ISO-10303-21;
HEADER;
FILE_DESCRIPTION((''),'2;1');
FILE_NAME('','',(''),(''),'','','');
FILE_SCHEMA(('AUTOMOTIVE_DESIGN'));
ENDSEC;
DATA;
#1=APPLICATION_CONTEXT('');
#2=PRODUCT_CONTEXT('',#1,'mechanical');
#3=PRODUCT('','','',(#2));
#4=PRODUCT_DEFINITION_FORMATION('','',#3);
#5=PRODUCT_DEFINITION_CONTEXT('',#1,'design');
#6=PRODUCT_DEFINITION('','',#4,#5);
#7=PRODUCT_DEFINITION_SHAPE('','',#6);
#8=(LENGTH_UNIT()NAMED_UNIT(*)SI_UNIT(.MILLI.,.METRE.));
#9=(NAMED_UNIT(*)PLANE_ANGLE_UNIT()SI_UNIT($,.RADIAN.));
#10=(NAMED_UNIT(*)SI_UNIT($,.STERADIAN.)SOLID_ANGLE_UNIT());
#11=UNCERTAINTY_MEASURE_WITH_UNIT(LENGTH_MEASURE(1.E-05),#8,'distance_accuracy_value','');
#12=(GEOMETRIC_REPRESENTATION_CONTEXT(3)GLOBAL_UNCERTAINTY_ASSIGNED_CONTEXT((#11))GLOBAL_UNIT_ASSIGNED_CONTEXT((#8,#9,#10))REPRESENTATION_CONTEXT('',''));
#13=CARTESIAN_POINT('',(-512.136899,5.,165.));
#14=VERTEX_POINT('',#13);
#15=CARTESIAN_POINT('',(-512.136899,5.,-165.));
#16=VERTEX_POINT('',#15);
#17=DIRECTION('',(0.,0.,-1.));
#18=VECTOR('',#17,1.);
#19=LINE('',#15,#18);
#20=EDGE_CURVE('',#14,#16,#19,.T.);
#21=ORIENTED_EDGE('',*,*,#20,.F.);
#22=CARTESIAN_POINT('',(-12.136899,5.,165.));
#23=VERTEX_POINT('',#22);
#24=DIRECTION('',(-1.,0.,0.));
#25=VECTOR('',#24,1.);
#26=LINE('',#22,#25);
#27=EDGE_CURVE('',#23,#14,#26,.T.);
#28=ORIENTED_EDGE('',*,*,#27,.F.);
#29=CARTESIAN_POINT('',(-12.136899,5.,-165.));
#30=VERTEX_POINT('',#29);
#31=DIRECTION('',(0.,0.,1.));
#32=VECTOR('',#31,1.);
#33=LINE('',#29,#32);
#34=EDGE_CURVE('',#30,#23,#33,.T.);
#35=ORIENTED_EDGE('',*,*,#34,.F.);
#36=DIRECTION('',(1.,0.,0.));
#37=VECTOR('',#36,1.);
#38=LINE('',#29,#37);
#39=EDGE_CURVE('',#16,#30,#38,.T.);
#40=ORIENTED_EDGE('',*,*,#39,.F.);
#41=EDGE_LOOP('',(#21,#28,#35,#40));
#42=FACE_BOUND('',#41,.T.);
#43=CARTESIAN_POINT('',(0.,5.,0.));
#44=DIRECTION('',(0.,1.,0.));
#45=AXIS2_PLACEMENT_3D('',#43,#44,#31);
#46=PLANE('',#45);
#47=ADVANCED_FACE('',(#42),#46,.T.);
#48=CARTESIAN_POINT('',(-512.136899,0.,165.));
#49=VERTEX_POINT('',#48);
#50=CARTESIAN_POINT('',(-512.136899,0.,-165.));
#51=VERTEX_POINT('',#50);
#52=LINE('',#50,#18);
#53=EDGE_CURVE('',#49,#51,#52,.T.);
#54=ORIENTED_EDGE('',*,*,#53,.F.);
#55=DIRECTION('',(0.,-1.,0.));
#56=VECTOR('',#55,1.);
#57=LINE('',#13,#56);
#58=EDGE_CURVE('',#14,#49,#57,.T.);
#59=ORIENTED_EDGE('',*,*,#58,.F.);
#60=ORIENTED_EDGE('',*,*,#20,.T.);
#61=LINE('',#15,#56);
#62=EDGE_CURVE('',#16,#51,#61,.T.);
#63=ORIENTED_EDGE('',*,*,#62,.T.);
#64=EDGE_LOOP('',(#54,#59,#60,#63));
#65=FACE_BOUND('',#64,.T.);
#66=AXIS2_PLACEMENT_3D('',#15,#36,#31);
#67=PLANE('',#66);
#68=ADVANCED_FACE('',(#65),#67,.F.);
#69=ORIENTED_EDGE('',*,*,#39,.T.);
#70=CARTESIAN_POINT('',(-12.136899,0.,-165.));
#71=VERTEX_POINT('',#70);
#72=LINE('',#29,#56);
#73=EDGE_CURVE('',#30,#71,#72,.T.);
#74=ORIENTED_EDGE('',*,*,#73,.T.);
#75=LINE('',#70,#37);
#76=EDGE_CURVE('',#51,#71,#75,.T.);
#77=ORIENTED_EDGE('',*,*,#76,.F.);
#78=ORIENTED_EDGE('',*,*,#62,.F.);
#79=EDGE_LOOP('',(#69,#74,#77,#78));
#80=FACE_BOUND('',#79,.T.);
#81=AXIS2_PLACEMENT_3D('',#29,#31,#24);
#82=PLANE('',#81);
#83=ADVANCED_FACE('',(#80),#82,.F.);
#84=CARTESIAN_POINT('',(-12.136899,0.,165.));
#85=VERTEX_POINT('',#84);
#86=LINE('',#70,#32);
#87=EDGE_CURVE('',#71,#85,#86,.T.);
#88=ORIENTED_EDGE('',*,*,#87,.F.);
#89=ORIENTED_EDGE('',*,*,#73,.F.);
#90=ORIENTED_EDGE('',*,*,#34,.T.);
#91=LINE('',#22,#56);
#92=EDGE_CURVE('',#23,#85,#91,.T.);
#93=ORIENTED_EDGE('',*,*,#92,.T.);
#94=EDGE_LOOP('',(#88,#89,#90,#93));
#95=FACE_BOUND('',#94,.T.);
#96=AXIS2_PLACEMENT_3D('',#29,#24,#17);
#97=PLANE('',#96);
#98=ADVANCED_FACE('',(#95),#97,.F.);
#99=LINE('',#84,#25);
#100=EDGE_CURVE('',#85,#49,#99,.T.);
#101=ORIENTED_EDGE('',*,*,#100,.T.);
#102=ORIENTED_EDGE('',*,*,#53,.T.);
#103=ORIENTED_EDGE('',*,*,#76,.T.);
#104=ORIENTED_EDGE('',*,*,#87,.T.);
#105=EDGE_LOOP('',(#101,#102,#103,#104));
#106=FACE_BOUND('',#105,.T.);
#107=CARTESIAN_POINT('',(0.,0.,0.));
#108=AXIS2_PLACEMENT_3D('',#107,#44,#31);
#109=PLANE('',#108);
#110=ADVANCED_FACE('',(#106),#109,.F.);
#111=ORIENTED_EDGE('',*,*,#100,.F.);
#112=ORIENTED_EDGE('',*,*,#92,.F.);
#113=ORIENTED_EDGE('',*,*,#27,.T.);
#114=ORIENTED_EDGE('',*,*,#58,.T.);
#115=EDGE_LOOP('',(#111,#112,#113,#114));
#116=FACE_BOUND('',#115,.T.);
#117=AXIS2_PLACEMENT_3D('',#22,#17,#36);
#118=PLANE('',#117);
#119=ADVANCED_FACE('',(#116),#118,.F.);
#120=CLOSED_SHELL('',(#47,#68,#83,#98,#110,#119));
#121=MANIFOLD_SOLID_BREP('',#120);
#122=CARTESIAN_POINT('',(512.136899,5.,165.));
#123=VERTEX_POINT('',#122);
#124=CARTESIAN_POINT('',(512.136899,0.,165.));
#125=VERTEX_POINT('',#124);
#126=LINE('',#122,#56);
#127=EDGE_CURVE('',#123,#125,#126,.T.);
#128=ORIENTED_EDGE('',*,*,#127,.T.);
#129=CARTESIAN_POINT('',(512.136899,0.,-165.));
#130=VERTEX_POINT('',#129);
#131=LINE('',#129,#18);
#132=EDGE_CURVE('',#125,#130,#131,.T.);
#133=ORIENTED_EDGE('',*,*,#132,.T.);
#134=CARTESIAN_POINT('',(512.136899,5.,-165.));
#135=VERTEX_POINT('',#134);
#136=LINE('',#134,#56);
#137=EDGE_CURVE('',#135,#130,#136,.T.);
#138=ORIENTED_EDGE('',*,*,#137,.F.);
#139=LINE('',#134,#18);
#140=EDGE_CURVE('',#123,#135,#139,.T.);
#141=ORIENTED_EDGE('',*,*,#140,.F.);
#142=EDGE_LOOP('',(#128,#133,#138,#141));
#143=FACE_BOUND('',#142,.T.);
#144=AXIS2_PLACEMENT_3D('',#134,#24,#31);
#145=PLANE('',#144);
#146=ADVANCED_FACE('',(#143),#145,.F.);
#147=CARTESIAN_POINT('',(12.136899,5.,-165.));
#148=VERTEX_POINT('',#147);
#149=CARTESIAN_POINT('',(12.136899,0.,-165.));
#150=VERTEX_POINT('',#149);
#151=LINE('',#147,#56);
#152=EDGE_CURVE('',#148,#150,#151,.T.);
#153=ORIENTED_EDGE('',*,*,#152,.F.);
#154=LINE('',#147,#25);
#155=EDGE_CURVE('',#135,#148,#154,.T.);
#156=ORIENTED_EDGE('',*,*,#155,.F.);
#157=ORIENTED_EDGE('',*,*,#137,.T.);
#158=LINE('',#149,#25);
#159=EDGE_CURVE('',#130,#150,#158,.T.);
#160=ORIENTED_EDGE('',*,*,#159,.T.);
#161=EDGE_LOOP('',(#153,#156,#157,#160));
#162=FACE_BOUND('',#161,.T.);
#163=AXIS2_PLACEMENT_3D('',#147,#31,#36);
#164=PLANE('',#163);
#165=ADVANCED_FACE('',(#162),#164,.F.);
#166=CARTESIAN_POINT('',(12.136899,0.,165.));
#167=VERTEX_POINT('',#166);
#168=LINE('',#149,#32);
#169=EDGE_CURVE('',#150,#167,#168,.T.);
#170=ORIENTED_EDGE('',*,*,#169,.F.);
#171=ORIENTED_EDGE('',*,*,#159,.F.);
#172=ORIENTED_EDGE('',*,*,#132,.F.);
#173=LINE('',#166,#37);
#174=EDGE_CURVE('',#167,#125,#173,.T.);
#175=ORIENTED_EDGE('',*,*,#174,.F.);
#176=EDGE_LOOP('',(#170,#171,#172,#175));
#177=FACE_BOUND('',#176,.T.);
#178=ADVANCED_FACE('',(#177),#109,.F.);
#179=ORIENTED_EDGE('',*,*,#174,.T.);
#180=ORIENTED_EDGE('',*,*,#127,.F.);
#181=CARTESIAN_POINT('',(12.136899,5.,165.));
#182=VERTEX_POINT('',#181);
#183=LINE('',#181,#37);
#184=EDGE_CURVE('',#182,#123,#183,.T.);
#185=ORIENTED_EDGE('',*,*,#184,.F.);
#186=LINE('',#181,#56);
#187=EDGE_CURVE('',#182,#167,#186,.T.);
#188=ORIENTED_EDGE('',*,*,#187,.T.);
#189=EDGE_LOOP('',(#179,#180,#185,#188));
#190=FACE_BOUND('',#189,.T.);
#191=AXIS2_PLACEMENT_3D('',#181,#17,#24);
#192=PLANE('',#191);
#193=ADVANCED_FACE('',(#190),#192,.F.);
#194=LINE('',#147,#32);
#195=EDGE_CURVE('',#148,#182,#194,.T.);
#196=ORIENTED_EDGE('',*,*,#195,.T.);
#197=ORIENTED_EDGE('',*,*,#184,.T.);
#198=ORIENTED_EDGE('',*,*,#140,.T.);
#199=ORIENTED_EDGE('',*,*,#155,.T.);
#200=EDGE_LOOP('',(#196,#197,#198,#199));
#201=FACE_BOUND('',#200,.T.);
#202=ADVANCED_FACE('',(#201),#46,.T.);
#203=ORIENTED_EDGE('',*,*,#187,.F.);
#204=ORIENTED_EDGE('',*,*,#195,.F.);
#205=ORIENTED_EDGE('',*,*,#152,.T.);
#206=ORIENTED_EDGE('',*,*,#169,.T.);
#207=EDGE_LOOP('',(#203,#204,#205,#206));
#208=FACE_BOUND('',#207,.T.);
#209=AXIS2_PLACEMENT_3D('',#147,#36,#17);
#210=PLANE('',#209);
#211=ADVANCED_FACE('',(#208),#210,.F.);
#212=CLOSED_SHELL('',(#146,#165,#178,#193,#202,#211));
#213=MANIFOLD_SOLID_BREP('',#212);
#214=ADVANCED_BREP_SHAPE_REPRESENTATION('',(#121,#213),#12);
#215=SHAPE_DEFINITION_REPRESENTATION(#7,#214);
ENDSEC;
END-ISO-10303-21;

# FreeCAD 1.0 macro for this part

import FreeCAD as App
import Part
import Sketcher

doc = App.newDocument("Part")
body = doc.addObject("PartDesign::Body", "Body")

# Sketch on XZ plane
sketch1 = body.newObject("Sketcher::SketchObject", "Sketch")
sketch1.AttachmentSupport = (doc.getObject("XZ_Plane"), [""])
sketch1.MapMode = "FlatFace"
sketch1.addGeometry([
    Part.LineSegment(App.Vector(12, -165, 0), App.Vector(12, 165, 0)),
    Part.LineSegment(App.Vector(12, 165, 0), App.Vector(512, 165, 0)),
    Part.LineSegment(App.Vector(512, 165, 0), App.Vector(512, -165, 0)),
    Part.LineSegment(App.Vector(512, -165, 0), App.Vector(12, -165, 0)),
], False)
sketch1.addConstraint([
    Sketcher.Constraint("Coincident", 0, 2, 1, 1),
    Sketcher.Constraint("Coincident", 1, 2, 2, 1),
    Sketcher.Constraint("Coincident", 2, 2, 3, 1),
    Sketcher.Constraint("Coincident", 3, 2, 0, 1),
    Sketcher.Constraint("Vertical", 0),
    Sketcher.Constraint("Horizontal", 1),
    Sketcher.Constraint("Vertical", 2),
    Sketcher.Constraint("Horizontal", 3),
    Sketcher.Constraint("DistanceX", 1, 1, 1, 2, 500.0),
    Sketcher.Constraint("DistanceY", 0, 1, 0, 2, 330.0),
    Sketcher.Constraint("DistanceY", -1, 1, 0, 2, 165.0),
    Sketcher.Constraint("DistanceX", -1, 1, 0, 2, 12.136899),
])
pad1 = body.newObject("PartDesign::Pad", "Pad")
pad1.Profile = sketch1
pad1.Length = 5
pad1.Reversed = True
body2 = doc.addObject("PartDesign::Body", "Body001")
doc.recompute()

mirroring = doc.addObject("Part::Mirroring", "Mirroring")
mirroring.Source = body
mirroring.Base = App.Vector(0, 0, 0)
mirroring.Normal = App.Vector(1, 0, 0)
body2.BaseFeature = mirroring
doc.recompute()
mirroring.Visibility = False

doc.recompute()
